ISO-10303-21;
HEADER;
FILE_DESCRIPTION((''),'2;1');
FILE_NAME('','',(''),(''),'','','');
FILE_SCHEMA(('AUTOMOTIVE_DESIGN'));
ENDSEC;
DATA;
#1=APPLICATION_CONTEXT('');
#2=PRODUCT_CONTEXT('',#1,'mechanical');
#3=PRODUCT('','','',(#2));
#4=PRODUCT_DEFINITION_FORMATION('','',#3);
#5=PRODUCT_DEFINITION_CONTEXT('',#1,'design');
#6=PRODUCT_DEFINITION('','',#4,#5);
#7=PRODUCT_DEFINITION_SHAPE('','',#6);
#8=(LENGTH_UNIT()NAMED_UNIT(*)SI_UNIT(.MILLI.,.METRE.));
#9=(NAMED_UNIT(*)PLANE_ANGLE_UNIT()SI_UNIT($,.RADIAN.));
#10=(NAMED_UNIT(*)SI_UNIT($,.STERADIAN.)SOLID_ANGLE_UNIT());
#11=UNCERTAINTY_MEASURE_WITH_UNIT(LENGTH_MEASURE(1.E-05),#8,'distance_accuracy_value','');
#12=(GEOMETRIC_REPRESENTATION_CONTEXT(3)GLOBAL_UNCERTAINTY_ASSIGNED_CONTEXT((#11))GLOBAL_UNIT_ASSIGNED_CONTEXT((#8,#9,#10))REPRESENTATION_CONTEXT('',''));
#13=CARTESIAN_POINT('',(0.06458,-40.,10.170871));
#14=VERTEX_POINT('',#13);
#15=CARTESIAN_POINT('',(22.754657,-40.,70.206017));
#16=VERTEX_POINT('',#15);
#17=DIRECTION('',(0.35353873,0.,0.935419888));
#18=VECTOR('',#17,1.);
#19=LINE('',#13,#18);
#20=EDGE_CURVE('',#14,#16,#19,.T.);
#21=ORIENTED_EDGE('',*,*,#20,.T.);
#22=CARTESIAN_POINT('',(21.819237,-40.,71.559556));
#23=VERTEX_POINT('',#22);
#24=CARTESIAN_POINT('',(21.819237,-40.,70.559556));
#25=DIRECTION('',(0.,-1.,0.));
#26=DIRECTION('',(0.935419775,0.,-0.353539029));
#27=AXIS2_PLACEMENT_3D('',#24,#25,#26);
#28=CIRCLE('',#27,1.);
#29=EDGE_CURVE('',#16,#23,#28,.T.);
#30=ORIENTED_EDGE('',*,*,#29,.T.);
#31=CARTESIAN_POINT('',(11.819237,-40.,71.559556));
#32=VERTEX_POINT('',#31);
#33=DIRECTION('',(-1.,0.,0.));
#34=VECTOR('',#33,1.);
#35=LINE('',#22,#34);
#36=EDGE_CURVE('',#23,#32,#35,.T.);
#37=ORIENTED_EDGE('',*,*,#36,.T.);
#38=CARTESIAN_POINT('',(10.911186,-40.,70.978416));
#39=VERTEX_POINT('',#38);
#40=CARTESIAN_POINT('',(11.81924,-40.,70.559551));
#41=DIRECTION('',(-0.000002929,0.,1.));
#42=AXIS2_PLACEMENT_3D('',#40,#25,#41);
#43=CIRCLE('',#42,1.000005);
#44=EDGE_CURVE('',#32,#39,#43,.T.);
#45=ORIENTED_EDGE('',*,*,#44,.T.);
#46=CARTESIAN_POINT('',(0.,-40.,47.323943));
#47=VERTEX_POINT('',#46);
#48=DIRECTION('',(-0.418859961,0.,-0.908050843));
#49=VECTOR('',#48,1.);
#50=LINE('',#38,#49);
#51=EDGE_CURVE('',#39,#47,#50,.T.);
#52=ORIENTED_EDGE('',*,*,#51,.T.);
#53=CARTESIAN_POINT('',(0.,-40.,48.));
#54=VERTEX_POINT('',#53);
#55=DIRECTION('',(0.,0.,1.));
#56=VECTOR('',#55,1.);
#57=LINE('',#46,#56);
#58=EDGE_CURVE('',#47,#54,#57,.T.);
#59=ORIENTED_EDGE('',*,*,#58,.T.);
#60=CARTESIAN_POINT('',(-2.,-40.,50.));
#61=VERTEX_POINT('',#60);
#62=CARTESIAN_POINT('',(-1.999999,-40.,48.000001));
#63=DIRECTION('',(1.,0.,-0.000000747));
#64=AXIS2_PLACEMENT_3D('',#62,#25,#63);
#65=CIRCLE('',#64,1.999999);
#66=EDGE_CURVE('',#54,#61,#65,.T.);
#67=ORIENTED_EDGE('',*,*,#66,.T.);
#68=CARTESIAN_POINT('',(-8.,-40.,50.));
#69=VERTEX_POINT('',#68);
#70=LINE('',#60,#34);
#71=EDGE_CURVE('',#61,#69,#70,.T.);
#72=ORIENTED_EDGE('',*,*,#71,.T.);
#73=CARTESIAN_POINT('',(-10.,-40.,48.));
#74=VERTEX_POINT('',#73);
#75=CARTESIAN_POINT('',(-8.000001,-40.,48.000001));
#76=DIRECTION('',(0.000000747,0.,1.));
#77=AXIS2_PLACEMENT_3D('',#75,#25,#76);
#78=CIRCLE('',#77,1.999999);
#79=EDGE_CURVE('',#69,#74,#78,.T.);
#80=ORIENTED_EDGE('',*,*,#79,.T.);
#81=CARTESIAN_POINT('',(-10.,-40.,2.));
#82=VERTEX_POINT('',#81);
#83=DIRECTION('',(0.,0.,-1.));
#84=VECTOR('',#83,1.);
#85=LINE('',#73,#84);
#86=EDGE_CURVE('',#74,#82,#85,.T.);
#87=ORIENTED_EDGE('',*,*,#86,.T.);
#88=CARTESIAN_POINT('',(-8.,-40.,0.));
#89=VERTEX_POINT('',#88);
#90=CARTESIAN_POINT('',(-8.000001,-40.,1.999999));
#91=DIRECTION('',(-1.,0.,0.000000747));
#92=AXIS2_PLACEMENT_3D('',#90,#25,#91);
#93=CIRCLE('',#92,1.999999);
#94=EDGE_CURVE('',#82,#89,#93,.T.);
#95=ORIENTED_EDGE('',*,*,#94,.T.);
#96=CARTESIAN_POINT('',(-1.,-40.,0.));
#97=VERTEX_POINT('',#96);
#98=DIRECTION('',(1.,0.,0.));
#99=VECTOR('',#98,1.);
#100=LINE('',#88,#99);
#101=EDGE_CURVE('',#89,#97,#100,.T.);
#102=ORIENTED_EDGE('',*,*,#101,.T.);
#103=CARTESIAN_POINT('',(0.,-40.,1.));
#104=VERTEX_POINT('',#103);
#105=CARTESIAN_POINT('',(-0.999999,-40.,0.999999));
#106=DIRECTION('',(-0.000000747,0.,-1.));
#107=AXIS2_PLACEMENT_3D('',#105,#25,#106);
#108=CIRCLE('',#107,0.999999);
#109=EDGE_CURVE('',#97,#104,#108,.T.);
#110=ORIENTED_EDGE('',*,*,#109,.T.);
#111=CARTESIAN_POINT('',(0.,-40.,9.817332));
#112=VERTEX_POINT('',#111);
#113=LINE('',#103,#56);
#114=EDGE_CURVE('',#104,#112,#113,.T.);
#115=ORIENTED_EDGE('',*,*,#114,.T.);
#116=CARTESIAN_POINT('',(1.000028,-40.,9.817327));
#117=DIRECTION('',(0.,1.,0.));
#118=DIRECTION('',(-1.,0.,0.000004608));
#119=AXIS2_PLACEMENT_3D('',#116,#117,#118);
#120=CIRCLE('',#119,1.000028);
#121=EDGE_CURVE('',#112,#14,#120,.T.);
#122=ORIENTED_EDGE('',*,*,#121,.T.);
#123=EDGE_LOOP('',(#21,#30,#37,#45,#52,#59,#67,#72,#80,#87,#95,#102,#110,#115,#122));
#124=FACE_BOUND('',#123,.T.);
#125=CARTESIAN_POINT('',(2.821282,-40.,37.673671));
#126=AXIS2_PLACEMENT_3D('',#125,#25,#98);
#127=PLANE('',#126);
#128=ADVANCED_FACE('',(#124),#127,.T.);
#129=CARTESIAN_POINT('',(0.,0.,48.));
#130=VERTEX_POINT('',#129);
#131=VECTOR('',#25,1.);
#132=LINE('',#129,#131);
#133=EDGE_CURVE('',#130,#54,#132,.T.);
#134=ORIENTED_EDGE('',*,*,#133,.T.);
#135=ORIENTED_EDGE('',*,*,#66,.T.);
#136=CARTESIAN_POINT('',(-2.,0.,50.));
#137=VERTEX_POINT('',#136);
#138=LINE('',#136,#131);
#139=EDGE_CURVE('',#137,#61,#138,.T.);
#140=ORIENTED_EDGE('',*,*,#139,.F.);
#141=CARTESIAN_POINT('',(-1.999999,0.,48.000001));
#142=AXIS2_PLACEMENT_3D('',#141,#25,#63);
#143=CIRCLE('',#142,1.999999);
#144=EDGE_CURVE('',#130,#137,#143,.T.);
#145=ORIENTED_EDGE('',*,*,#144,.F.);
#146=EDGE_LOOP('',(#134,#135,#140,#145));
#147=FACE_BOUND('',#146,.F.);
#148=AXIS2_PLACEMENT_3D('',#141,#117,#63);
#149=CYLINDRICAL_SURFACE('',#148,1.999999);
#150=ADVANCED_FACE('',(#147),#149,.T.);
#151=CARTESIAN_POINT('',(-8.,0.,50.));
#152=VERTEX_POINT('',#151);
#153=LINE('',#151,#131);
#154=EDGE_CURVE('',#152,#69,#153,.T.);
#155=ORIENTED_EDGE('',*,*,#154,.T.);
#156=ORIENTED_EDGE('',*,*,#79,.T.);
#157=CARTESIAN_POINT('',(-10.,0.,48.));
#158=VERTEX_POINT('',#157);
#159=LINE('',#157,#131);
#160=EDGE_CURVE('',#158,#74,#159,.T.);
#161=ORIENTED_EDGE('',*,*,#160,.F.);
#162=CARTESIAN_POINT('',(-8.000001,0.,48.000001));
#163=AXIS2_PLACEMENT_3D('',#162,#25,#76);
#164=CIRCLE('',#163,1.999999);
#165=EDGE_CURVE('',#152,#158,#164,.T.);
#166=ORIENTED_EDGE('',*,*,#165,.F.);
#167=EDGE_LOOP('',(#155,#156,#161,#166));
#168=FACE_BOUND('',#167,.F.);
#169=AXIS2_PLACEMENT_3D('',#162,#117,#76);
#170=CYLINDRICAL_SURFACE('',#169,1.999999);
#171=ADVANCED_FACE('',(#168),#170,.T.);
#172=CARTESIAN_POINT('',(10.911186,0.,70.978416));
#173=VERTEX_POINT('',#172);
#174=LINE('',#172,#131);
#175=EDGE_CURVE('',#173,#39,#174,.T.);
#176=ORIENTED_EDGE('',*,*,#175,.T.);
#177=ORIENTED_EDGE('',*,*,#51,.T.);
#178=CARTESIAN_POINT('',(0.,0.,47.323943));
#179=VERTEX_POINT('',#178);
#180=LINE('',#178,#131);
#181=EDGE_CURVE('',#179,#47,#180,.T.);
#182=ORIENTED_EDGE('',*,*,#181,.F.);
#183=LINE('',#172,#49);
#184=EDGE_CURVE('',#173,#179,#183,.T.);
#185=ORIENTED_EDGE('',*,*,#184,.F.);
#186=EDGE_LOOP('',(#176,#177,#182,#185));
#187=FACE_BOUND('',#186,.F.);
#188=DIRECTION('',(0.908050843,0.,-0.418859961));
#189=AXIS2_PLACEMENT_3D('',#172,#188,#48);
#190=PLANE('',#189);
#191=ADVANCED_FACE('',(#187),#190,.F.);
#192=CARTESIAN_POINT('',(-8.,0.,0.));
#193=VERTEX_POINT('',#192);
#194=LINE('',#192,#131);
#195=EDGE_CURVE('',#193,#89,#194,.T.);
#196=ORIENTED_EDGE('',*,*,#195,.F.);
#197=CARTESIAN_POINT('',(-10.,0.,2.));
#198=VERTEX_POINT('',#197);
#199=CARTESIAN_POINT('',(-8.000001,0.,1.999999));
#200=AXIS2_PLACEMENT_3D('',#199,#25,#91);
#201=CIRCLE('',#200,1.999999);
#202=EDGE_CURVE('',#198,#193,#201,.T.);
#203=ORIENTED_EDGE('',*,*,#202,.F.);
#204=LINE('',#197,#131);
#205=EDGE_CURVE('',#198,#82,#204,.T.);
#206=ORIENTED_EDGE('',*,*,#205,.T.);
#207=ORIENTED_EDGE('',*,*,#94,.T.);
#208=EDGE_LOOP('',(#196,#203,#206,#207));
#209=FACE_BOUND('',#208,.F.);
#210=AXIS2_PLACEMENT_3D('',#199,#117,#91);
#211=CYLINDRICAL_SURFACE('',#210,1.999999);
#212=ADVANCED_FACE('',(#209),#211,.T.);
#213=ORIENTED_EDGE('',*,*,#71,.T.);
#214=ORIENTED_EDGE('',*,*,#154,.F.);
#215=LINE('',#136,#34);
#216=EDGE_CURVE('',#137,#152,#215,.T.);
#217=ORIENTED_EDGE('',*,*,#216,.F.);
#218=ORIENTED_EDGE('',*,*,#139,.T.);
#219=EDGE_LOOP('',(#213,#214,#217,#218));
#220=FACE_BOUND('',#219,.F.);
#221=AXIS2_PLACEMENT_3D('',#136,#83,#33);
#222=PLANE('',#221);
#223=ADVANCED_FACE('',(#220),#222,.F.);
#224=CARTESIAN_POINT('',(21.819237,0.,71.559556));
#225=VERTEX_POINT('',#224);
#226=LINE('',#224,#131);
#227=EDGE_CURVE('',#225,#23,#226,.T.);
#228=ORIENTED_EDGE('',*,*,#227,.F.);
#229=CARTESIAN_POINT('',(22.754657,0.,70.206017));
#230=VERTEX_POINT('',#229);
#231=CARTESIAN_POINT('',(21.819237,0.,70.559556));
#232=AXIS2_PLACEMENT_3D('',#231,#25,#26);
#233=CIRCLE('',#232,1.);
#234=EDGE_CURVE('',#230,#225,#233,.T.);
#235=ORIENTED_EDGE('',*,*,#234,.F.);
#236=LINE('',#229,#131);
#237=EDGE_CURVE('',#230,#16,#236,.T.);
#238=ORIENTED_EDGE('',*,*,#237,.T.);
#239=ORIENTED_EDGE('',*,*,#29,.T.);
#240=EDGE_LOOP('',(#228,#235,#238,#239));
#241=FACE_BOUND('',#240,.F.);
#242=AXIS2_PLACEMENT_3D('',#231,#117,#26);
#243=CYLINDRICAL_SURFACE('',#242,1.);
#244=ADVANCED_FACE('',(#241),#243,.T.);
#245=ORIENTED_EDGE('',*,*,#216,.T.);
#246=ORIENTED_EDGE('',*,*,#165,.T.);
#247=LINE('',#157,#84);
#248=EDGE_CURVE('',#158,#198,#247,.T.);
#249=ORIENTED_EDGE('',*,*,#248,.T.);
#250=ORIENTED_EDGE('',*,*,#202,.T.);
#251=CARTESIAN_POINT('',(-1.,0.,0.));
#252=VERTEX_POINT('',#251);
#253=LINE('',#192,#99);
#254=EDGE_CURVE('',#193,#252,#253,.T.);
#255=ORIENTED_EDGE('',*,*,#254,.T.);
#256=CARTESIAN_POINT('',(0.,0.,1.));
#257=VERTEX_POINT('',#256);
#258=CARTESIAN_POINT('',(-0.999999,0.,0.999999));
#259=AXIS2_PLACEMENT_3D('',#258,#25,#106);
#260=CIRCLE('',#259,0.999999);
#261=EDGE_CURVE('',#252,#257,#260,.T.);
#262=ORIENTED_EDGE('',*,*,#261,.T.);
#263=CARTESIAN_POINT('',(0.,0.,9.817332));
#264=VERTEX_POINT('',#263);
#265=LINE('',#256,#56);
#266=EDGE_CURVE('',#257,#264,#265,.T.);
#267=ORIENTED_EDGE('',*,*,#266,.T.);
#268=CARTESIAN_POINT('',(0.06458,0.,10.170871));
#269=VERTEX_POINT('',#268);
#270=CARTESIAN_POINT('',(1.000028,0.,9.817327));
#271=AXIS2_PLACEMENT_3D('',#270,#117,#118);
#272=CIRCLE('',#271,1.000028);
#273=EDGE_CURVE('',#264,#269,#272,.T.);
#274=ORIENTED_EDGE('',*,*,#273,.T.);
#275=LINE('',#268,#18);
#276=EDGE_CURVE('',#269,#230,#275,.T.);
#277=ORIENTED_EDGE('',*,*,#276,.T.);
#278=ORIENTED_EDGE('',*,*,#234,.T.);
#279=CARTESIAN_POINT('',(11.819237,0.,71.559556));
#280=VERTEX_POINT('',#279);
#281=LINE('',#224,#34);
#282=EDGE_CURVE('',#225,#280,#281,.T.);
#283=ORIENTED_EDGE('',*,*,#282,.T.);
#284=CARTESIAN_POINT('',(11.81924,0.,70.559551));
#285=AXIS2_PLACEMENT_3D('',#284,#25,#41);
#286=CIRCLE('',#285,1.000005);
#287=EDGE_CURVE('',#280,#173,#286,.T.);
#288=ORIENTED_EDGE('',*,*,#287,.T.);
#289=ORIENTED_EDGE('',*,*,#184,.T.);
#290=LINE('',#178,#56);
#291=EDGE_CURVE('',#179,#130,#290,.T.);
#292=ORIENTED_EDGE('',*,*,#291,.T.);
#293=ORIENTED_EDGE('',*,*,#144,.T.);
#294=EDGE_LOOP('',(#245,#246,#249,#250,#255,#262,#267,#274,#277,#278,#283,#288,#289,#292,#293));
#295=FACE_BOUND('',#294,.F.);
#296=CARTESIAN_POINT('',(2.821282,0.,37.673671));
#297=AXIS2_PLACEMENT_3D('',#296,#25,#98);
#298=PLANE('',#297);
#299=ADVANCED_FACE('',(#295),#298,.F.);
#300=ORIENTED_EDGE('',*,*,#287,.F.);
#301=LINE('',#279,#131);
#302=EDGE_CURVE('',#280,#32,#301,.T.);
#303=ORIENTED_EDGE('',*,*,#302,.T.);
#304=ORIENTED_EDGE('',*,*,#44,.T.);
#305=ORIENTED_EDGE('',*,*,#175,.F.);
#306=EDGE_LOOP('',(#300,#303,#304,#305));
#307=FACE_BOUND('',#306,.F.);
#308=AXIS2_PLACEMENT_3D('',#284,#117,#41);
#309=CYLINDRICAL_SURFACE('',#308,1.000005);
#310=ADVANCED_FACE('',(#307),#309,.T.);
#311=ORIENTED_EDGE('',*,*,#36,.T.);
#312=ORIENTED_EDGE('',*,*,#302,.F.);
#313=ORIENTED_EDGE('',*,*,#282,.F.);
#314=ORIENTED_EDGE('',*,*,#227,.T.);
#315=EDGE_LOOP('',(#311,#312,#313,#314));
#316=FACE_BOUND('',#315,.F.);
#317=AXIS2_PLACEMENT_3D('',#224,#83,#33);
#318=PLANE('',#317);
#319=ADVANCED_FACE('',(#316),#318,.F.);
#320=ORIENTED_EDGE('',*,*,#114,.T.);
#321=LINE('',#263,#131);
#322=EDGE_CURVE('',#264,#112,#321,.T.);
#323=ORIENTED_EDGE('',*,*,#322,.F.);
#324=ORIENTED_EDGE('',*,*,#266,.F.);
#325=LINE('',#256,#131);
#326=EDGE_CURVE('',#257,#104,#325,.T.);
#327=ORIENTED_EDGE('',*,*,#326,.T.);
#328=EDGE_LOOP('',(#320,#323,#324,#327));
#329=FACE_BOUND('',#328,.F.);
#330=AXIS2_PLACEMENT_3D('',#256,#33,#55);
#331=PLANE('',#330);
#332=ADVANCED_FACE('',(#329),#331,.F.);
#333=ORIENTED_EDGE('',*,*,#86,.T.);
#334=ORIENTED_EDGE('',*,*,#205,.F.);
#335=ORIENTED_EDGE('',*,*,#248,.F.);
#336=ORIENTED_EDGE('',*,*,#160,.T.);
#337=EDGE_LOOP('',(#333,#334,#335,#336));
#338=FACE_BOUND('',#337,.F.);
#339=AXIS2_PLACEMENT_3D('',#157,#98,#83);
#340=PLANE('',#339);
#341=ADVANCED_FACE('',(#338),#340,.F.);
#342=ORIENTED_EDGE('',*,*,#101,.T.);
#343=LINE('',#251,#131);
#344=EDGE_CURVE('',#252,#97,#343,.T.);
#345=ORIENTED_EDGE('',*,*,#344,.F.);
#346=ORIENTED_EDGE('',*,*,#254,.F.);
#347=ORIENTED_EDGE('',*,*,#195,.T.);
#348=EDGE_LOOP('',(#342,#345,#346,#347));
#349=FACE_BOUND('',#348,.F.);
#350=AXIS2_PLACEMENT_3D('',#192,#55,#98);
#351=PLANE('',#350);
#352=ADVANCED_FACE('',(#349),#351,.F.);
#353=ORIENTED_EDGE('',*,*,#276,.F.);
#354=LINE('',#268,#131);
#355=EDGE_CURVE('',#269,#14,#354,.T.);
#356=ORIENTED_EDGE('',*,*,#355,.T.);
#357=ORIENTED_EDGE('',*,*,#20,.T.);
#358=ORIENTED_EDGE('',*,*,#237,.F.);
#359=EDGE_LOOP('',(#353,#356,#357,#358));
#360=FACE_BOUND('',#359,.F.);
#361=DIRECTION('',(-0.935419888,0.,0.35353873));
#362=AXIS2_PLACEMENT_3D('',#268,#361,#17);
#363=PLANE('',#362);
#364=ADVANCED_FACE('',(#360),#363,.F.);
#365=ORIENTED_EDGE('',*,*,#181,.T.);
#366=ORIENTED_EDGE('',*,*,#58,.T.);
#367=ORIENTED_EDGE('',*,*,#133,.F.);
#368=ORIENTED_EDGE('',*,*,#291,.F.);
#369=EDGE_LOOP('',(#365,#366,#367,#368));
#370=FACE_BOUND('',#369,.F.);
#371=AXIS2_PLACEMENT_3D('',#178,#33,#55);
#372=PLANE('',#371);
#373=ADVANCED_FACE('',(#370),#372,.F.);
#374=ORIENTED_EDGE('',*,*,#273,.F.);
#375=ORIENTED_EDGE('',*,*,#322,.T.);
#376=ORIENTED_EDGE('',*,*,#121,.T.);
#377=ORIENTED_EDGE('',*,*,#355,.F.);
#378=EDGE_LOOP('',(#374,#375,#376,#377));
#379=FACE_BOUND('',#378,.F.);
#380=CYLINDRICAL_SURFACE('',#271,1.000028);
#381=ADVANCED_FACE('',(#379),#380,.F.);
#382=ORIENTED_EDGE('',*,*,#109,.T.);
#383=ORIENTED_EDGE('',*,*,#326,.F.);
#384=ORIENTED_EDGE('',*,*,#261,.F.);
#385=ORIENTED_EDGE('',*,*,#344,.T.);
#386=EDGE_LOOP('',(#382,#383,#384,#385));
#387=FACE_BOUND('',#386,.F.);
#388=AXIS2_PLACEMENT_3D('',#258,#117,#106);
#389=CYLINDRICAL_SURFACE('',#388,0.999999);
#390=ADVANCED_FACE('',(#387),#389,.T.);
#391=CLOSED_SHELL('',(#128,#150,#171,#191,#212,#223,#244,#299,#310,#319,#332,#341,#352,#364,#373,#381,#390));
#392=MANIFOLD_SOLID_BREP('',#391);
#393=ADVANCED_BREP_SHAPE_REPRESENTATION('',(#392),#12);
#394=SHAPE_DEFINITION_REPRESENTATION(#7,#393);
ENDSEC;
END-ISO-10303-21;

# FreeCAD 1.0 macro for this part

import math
import FreeCAD as App
import Part
import Sketcher

V = App.Vector
Q = App.Units.Quantity

doc = App.newDocument("Part")
body = doc.addObject("PartDesign::Body", "Body")

# Sketch on XZ plane
sketch1 = body.newObject("Sketcher::SketchObject", "Sketch")
sketch1.AttachmentSupport = (doc.getObject("XZ_Plane"), [""])
sketch1.MapMode = "FlatFace"
sketch1.addGeometry([
    Part.LineSegment(V(-10, 48, 0), V(-10, 2, 0)),  # 0
    Part.ArcOfCircle(Part.Circle(V(-8, 2, 0), V(0, 0, 1), 2), math.radians(180), math.radians(270)),  # 1
    Part.LineSegment(V(-8, 0, 0), V(-1, 0, 0)),  # 2
    Part.ArcOfCircle(Part.Circle(V(-1, 1, 0), V(0, 0, 1), 1), math.radians(-90), math.radians(0)),  # 3
    Part.LineSegment(V(0, 1, 0), V(0, 9.82, 0)),  # 4
    Part.ArcOfCircle(Part.Circle(V(1, 9.82, 0), V(0, 0, 1), 1), math.radians(159), math.radians(180)),  # 5
    Part.LineSegment(V(0.06, 10.17, 0), V(22.75, 70.21, 0)),  # 6
    Part.ArcOfCircle(Part.Circle(V(21.82, 70.56, 0), V(0, 0, 1), 1), math.radians(-21), math.radians(90)),  # 7
    Part.LineSegment(V(21.82, 71.56, 0), V(11.82, 71.56, 0)),  # 8
    Part.ArcOfCircle(Part.Circle(V(11.82, 70.56, 0), V(0, 0, 1), 1), math.radians(90), math.radians(155)),  # 9
    Part.LineSegment(V(10.91, 70.98, 0), V(0, 47.32, 0)),  # 10
    Part.LineSegment(V(0, 47.32, 0), V(0, 48, 0)),  # 11
    Part.ArcOfCircle(Part.Circle(V(-2, 48, 0), V(0, 0, 1), 2), math.radians(0), math.radians(90)),  # 12
    Part.LineSegment(V(-2, 50, 0), V(-8, 50, 0)),  # 13
    Part.ArcOfCircle(Part.Circle(V(-8, 48, 0), V(0, 0, 1), 2), math.radians(90), math.radians(180)),  # 14
], False)
sketch1.addConstraint([
    Sketcher.Constraint("Tangent", 0, 2, 1, 1),
    Sketcher.Constraint("Tangent", 1, 2, 2, 1),
    Sketcher.Constraint("Tangent", 2, 2, 3, 1),
    Sketcher.Constraint("Tangent", 3, 2, 4, 1),
    Sketcher.Constraint("Coincident", 4, 2, 5, 2),
    Sketcher.Constraint("Coincident", 5, 1, 6, 1),
    Sketcher.Constraint("Tangent", 6, 2, 7, 1),
    Sketcher.Constraint("Tangent", 7, 2, 8, 1),
    Sketcher.Constraint("Coincident", 8, 2, 9, 1),
    Sketcher.Constraint("Coincident", 9, 2, 10, 1),
    Sketcher.Constraint("Coincident", 10, 2, 11, 1),
    Sketcher.Constraint("Tangent", 11, 2, 12, 1),
    Sketcher.Constraint("Tangent", 12, 2, 13, 1),
    Sketcher.Constraint("Tangent", 13, 2, 14, 1),
    Sketcher.Constraint("Tangent", 14, 2, 0, 1),
    Sketcher.Constraint("Vertical", 0),
    Sketcher.Constraint("Horizontal", 2),
    Sketcher.Constraint("Vertical", 4),
    Sketcher.Constraint("Horizontal", 8),
    Sketcher.Constraint("Vertical", 11),
    Sketcher.Constraint("Horizontal", 13),
    Sketcher.Constraint("Equal", 3, 7),
    Sketcher.Constraint("Equal", 1, 12),
    Sketcher.Constraint("Equal", 12, 14),
    Sketcher.Constraint("PointOnObject", 1, 2, -1),
    Sketcher.Constraint("PointOnObject", 3, 2, -2),
    Sketcher.Constraint("PointOnObject", 10, 2, -2),
    Sketcher.Constraint("Radius", 1, Q("1.999999 mm")),
    Sketcher.Constraint("Radius", 3, Q("0.999999 mm")),
    Sketcher.Constraint("DistanceX", 2, 1, 2, 2, Q("7 mm")),
    Sketcher.Constraint("DistanceX", 8, 2, 8, 1, Q("10 mm")),
    Sketcher.Constraint("DistanceY", 0, 2, 0, 1, Q("46 mm")),
    Sketcher.Constraint("Radius", 5, Q("1.000028 mm")),
    Sketcher.Constraint("Radius", 9, Q("1.000005 mm")),
    Sketcher.Constraint("DistanceY", 6, 2, 9, 2, Q("0.772399 mm")),
    Sketcher.Constraint("Distance", 6, Q("64.179891 mm")),
    Sketcher.Constraint("DistanceY", 4, 1, 4, 2, Q("8.817332 mm")),
    Sketcher.Constraint("DistanceY", 11, 1, 11, 2, Q("0.676057 mm")),
    Sketcher.Constraint("DistanceX", -1, 1, 9, 3, Q("11.81924 mm")),
    Sketcher.Constraint("DistanceY", -1, 1, 9, 3, Q("70.559551 mm")),
    Sketcher.Constraint("DistanceX", -1, 1, 5, 1, Q("0.06458 mm")),
    Sketcher.Constraint("DistanceY", -1, 1, 5, 1, Q("10.170871 mm")),
])
pad1 = body.newObject("PartDesign::Pad", "Pad")
pad1.Profile = sketch1
pad1.Length = 40

doc.recompute()
